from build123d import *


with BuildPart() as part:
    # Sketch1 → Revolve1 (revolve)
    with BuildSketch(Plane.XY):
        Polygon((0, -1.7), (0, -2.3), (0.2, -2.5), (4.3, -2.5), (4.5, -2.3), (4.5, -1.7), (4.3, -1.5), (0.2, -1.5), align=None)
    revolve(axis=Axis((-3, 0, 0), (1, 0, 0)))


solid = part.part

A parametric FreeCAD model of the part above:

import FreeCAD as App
import Part
import Sketcher

doc = App.newDocument("Part")
body = doc.addObject("PartDesign::Body", "Body")

# Sketch on XY plane
sketch1 = body.newObject("Sketcher::SketchObject", "Sketch")
sketch1.AttachmentSupport = (doc.getObject("XY_Plane"), [""])
sketch1.MapMode = "FlatFace"
sketch1.addGeometry([
    Part.LineSegment(App.Vector(0, -1.7, 0), App.Vector(0, -2.3, 0)),  # 0
    Part.LineSegment(App.Vector(0, -2.3, 0), App.Vector(0.2, -2.5, 0)),  # 1
    Part.LineSegment(App.Vector(0.2, -2.5, 0), App.Vector(4.3, -2.5, 0)),  # 2
    Part.LineSegment(App.Vector(4.3, -2.5, 0), App.Vector(4.5, -2.3, 0)),  # 3
    Part.LineSegment(App.Vector(4.5, -2.3, 0), App.Vector(4.5, -1.7, 0)),  # 4
    Part.LineSegment(App.Vector(4.5, -1.7, 0), App.Vector(4.3, -1.5, 0)),  # 5
    Part.LineSegment(App.Vector(4.3, -1.5, 0), App.Vector(0.2, -1.5, 0)),  # 6
    Part.LineSegment(App.Vector(0.2, -1.5, 0), App.Vector(0, -1.7, 0)),  # 7
], False)
sketch1.addConstraint([
    Sketcher.Constraint("Coincident", 0, 2, 1, 1),
    Sketcher.Constraint("Coincident", 1, 2, 2, 1),
    Sketcher.Constraint("Coincident", 2, 2, 3, 1),
    Sketcher.Constraint("Coincident", 3, 2, 4, 1),
    Sketcher.Constraint("Coincident", 4, 2, 5, 1),
    Sketcher.Constraint("Coincident", 5, 2, 6, 1),
    Sketcher.Constraint("Coincident", 6, 2, 7, 1),
    Sketcher.Constraint("Coincident", 7, 2, 0, 1),
    Sketcher.Constraint("Vertical", 0),
    Sketcher.Constraint("Horizontal", 2),
    Sketcher.Constraint("Vertical", 4),
    Sketcher.Constraint("Horizontal", 6),
    Sketcher.Constraint("PointOnObject", 0, 2, -2),
    Sketcher.Constraint("Perpendicular", 1, 3),
    Sketcher.Constraint("Perpendicular", 3, 5),
    Sketcher.Constraint("Perpendicular", 5, 7),
    Sketcher.Constraint("Horizontal", 0, 2, 3, 2),
    Sketcher.Constraint("Horizontal", 4, 2, 7, 2),
    Sketcher.Constraint("Vertical", 2, 2, 5, 2),
    Sketcher.Constraint("Vertical", 1, 2, 6, 2),
    Sketcher.Constraint("DistanceX", 2, 1, 2, 2, 4.1),
    Sketcher.Constraint("DistanceY", 0, 2, 0, 1, 0.6),
    Sketcher.Constraint("DistanceY", 2, 2, 5, 2, 1.0),
    Sketcher.Constraint("DistanceY", 0, 2, -1, 1, 2.3),
])
revolution = body.newObject("PartDesign::Revolution", "Revolution")
revolution.Profile = sketch1
revolution.ReferenceAxis = (sketch1, ["H_Axis"])
revolution.Angle = 360

doc.recompute()
